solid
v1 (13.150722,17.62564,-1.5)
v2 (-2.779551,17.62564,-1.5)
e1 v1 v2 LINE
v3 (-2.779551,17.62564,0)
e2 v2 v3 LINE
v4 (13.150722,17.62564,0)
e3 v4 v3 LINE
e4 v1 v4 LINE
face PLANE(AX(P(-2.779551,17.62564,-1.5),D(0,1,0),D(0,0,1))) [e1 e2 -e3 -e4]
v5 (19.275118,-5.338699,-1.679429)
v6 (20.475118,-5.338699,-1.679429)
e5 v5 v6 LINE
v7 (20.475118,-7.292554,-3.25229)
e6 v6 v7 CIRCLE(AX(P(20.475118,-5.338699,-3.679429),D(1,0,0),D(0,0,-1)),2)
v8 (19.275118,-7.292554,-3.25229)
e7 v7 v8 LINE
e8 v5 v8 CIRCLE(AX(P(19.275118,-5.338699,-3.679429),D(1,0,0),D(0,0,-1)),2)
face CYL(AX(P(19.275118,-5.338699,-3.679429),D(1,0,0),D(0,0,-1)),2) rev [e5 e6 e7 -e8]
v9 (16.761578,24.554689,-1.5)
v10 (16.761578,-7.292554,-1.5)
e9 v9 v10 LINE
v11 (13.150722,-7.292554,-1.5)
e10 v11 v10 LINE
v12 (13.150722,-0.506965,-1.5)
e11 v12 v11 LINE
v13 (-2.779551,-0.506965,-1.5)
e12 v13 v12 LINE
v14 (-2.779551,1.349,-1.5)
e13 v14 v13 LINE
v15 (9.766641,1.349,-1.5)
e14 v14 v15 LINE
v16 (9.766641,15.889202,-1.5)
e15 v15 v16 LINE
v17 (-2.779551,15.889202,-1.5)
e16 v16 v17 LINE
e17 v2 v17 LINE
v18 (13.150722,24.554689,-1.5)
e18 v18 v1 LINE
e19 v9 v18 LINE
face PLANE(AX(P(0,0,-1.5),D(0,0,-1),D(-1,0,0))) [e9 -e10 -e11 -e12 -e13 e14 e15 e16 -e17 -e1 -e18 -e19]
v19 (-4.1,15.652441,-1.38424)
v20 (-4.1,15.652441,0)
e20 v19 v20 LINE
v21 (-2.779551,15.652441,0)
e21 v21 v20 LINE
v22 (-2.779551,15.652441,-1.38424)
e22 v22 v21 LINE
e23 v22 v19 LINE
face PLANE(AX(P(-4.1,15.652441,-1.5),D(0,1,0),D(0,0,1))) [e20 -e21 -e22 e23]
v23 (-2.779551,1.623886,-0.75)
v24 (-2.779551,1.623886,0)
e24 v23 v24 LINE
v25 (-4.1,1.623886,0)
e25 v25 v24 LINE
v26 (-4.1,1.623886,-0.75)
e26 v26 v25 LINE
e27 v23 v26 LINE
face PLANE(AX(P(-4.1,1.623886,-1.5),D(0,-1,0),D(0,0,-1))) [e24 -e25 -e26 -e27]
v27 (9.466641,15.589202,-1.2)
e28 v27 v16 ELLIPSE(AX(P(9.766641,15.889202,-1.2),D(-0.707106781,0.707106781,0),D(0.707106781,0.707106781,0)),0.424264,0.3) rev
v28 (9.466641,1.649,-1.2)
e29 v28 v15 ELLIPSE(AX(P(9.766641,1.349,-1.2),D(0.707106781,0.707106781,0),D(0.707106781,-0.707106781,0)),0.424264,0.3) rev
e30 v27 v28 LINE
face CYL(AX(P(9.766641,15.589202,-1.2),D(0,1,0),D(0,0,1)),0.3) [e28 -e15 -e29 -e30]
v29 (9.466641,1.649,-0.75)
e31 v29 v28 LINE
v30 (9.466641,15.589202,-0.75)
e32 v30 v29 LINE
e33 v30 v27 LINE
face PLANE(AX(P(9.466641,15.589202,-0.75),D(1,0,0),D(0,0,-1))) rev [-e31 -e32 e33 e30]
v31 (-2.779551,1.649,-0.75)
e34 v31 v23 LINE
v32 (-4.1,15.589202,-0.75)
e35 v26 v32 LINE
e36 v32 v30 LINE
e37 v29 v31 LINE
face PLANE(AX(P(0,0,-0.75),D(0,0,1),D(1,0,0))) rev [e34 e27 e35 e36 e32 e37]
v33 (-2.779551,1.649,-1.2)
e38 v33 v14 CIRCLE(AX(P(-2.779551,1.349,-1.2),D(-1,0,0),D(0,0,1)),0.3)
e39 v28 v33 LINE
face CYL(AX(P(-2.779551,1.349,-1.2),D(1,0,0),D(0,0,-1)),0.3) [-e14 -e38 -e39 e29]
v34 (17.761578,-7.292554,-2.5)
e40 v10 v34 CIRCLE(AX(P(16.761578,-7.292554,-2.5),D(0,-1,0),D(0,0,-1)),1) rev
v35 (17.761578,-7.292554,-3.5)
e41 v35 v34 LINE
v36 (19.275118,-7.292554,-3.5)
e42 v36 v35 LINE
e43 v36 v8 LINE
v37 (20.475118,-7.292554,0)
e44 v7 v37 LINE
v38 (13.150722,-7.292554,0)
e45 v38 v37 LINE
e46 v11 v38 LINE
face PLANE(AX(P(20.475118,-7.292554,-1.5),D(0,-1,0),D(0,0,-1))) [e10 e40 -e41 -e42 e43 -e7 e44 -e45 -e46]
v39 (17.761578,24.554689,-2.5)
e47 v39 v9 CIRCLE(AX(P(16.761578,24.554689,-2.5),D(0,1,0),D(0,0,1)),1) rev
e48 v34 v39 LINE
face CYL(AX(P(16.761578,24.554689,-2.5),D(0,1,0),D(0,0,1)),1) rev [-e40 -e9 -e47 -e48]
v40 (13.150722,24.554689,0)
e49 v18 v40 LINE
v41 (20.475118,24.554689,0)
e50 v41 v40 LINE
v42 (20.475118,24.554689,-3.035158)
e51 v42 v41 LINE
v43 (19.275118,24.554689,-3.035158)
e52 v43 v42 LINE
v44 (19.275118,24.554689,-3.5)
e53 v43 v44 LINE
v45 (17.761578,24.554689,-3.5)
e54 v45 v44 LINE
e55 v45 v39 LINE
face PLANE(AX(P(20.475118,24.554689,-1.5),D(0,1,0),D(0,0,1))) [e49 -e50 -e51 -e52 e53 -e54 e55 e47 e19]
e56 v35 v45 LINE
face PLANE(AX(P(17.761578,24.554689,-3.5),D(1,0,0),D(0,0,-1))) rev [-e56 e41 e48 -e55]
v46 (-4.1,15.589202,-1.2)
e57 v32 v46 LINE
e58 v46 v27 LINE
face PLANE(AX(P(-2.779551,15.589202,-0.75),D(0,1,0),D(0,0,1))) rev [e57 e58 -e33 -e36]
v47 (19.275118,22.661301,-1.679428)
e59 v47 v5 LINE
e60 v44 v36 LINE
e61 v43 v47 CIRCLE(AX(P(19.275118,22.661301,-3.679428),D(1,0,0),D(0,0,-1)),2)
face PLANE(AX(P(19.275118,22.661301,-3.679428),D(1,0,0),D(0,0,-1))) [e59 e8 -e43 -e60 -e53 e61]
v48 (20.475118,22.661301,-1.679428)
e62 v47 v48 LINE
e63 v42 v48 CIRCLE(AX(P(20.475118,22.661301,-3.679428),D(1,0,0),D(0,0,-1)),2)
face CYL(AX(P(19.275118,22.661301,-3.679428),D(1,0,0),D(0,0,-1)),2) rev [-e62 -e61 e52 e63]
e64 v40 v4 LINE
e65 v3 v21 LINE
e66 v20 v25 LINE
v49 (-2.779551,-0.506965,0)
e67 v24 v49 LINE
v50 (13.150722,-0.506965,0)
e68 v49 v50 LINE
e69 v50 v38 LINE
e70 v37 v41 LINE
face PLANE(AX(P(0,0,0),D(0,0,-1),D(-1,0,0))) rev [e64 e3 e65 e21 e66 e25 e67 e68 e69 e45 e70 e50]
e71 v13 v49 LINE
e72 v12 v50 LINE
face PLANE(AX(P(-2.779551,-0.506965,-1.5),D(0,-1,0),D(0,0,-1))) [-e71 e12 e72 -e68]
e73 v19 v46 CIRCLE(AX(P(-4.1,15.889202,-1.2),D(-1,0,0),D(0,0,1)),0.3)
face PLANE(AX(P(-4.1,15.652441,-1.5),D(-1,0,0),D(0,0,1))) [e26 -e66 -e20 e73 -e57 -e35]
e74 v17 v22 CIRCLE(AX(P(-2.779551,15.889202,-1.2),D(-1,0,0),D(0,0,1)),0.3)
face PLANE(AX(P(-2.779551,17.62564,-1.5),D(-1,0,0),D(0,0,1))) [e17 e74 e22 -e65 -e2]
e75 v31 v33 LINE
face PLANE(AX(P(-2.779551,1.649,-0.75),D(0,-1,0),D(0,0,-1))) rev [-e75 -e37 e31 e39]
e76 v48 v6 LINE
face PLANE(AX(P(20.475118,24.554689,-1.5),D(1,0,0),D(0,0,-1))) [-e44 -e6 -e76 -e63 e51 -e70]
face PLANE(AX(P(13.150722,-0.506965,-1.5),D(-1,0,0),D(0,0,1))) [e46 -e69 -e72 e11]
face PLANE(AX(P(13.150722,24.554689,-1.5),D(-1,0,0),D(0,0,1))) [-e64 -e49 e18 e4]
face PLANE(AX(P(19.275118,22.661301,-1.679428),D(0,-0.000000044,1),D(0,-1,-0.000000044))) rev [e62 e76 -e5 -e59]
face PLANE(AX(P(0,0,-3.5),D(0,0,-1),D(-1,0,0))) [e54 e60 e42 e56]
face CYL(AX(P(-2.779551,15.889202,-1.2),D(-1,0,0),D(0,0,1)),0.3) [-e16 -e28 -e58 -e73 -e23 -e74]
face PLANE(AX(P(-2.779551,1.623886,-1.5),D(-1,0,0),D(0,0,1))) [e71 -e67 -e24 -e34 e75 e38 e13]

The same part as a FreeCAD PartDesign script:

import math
import FreeCAD as App
import Part
import Sketcher
from FreeCAD import Vector


def edges_at(feature, points):
    """Names of the edges that pass closest to the given points."""
    edges = feature.Shape.Edges
    near = lambda p: min(range(len(edges)), key=lambda i: edges[i].distToShape(Part.Vertex(*p))[0])
    return sorted({f"Edge{near(p) + 1}" for p in points})


def add_polygon(sketch, points):
    """Adds a closed chain of lines whose ends are joined by coincident constraints."""
    first, n = sketch.GeometryCount, len(points)
    for a, b in zip(points, points[1:] + points[:1]):
        sketch.addGeometry(Part.LineSegment(App.Vector(*a, 0), App.Vector(*b, 0)), False)
    for i in range(n):
        sketch.addConstraint(Sketcher.Constraint("Coincident", first + i, 2, first + (i + 1) % n, 1))

doc = App.newDocument("Part")
params = doc.addObject("Spreadsheet::Sheet", "Params")
for row, (alias, value) in enumerate([
    ("pad1_length", "1.5 mm"),
    ("pad2_length", "2 mm"),
    ("pocket1_length", "0.75 mm"),
    ("fillet_radius", "1 mm"),
    ("fillet2_radius", "0.3 mm"),
    ("sketch4_radius", "2 mm"),
    ("sketch4_width", "28 mm"),
    ("pocket2_length", "1.2 mm"),
], start=1):
    params.set(f"A{row}", alias)
    params.set(f"B{row}", "=" + value)
    params.setAlias(f"B{row}", alias)

body = doc.addObject("PartDesign::Body", "Body")

# Sketch on XY plane
sketch1 = body.newObject("Sketcher::SketchObject", "Sketch")
sketch1.AttachmentSupport = (doc.getObject("XY_Plane"), [""])
sketch1.MapMode = "FlatFace"
add_polygon(sketch1, [(13.150722, -0.506965), (13.150722, -7.292554), (20.475118, -7.292554), (20.475118, 24.554689), (13.150722, 24.554689), (13.150722, 17.62564), (-2.779551, 17.62564), (-2.779551, 15.652441), (-4.1, 15.652441), (-4.1, 1.623886), (-2.779551, 1.623886), (-2.779551, -0.506965)])  # lines 0-11
sketch1.addConstraint([
    Sketcher.Constraint("Vertical", 0),
    Sketcher.Constraint("Horizontal", 1),
    Sketcher.Constraint("Vertical", 2),
    Sketcher.Constraint("Horizontal", 3),
    Sketcher.Constraint("Vertical", 4),
    Sketcher.Constraint("Horizontal", 5),
    Sketcher.Constraint("Vertical", 6),
    Sketcher.Constraint("Horizontal", 7),
    Sketcher.Constraint("Vertical", 8),
    Sketcher.Constraint("Horizontal", 9),
    Sketcher.Constraint("Vertical", 10),
    Sketcher.Constraint("Horizontal", 11),
    Sketcher.Constraint("Vertical", 0, 2, 3, 2),
    Sketcher.Constraint("Vertical", 6, 2, 9, 2),
    Sketcher.Constraint("DistanceX", 7, 2, -1, 1, 4.1),
    Sketcher.Constraint("DistanceY", 6, 2, 6, 1, 1.973199),
    Sketcher.Constraint("DistanceX", 7, 2, 7, 1, 1.320449),
    Sketcher.Constraint("DistanceY", 0, 2, 0, 1, 6.78559),
    Sketcher.Constraint("DistanceY", 4, 2, 4, 1, 6.929048),
    Sketcher.Constraint("DistanceY", 10, 2, 10, 1, 2.130851),
    Sketcher.Constraint("DistanceX", 1, 1, 1, 2, 7.324396),
    Sketcher.Constraint("DistanceX", 5, 2, 5, 1, 15.930273),
    Sketcher.Constraint("DistanceY", 2, 1, 2, 2, 31.847243),
    Sketcher.Constraint("DistanceY", -1, 1, 2, 2, 24.554689),
])
pad1 = body.newObject("PartDesign::Pad", "Pad")
pad1.Profile = sketch1
pad1.setExpression("Length", "Params.pad1_length")
pad1.Reversed = True

# Sketch on XY plane
sketch2 = body.newObject("Sketcher::SketchObject", "Sketch001")
sketch2.AttachmentSupport = (doc.getObject("XY_Plane"), [""])
sketch2.MapMode = "FlatFace"
sketch2.AttachmentOffset = App.Placement(Vector(0, 0, -1.5), App.Rotation())
add_polygon(sketch2, [(20.475118, 24.554689), (20.475118, -7.292554), (17.761578, -7.292554), (17.761578, 24.554689)])  # lines 0-3
sketch2.addConstraint([
    Sketcher.Constraint("Vertical", 0),
    Sketcher.Constraint("Horizontal", 1),
    Sketcher.Constraint("Vertical", 2),
    Sketcher.Constraint("Horizontal", 3),
    Sketcher.Constraint("DistanceX", 1, 2, 1, 1, 2.713539),
    Sketcher.Constraint("DistanceY", 0, 2, 0, 1, 31.847243),
    Sketcher.Constraint("DistanceX", -1, 1, 1, 2, 17.761578),
    Sketcher.Constraint("DistanceY", -1, 1, 2, 2, 24.554689),
])
pad2 = body.newObject("PartDesign::Pad", "Pad001")
pad2.Profile = sketch2
pad2.setExpression("Length", "Params.pad2_length")
pad2.Reversed = True

# Sketch on XY plane
sketch3 = body.newObject("Sketcher::SketchObject", "Sketch002")
sketch3.AttachmentSupport = (doc.getObject("XY_Plane"), [""])
sketch3.MapMode = "FlatFace"
sketch3.AttachmentOffset = App.Placement(Vector(0, 0, -1.5), App.Rotation())
add_polygon(sketch3, [(9.466641, 15.589202), (9.466641, 1.649), (-2.779551, 1.649), (-2.779551, 1.623886), (-4.1, 1.623886), (-4.1, 15.589202)])  # lines 0-5
sketch3.addConstraint([
    Sketcher.Constraint("Vertical", 0),
    Sketcher.Constraint("Horizontal", 1),
    Sketcher.Constraint("Vertical", 2),
    Sketcher.Constraint("Horizontal", 3),
    Sketcher.Constraint("Vertical", 4),
    Sketcher.Constraint("Horizontal", 5),
    Sketcher.Constraint("DistanceX", 3, 2, -1, 1, 4.1),
    Sketcher.Constraint("DistanceY", 0, 2, 0, 1, 13.940201),
    Sketcher.Constraint("DistanceY", -1, 1, 0, 2, 1.649),
    Sketcher.Constraint("DistanceX", 1, 2, 1, 1, 12.246192),
    Sketcher.Constraint("DistanceX", 3, 2, 3, 1, 1.320449),
    Sketcher.Constraint("DistanceY", 2, 2, 2, 1, 0.025114),
])
pocket1 = body.newObject("PartDesign::Pocket", "Pocket")
pocket1.Profile = sketch3
pocket1.setExpression("Length", "Params.pocket1_length")
pocket1.Reversed = True
doc.recompute()

fillet = body.newObject("PartDesign::Fillet", "Fillet")
fillet.Base = (pocket1, edges_at(pocket1, [(17.762, 8.631, -1.5)]))
fillet.setExpression("Radius", "Params.fillet_radius")
doc.recompute()

fillet2 = body.newObject("PartDesign::Fillet", "Fillet001")
fillet2.Base = (fillet, edges_at(fillet, [(3.344, 1.649, -1.5), (9.467, 8.619, -1.5), (2.683, 15.589, -1.5)]))
fillet2.setExpression("Radius", "Params.fillet2_radius")

# Sketch on YZ plane
sketch4 = body.newObject("Sketcher::SketchObject", "Sketch003")
sketch4.AttachmentSupport = (doc.getObject("YZ_Plane"), [""])
sketch4.MapMode = "FlatFace"
sketch4.AttachmentOffset = App.Placement(Vector(0, 0, 20.475118), App.Rotation())
sketch4.addGeometry([
    Part.LineSegment(Vector(22.661301, -1.679428, 0), Vector(-5.338699, -1.679429, 0)),
    Part.ArcOfCircle(Part.Circle(Vector(-5.338699, -3.679429, 0), Vector(0, 0, 1), 2), math.radians(90.000003), math.radians(180.000003)),
    Part.LineSegment(Vector(-7.338699, -3.679429, 0), Vector(24.661301, -3.679428, 0)),
    Part.ArcOfCircle(Part.Circle(Vector(22.661301, -3.679428, 0), Vector(0, 0, 1), 2), math.radians(0.000003), math.radians(90.000002)),
], False)
sketch4.addConstraint([
    Sketcher.Constraint("Tangent", 0, 2, 1, 1),
    Sketcher.Constraint("Coincident", 1, 2, 2, 1),
    Sketcher.Constraint("Coincident", 2, 2, 3, 1),
    Sketcher.Constraint("Tangent", 3, 2, 0, 1),
    Sketcher.Constraint("Horizontal", 0),
    Sketcher.Constraint("Horizontal", 2),
    Sketcher.Constraint("Equal", 1, 3),
    Sketcher.Constraint("Horizontal", 3, 3, 1, 2),
    Sketcher.Constraint("Radius", 1, 2.0),
    Sketcher.Constraint("DistanceX", 0, 2, 0, 1, 28.0),
    Sketcher.Constraint("DistanceX", 1, 3, -1, 1, 5.338699),
    Sketcher.Constraint("DistanceY", 1, 3, -1, 1, 3.679429),
])
sketch4.setExpression("Constraints[8]", "Params.sketch4_radius")
sketch4.setExpression("Constraints[9]", "Params.sketch4_width")
pocket2 = body.newObject("PartDesign::Pocket", "Pocket001")
pocket2.Profile = sketch4
pocket2.setExpression("Length", "Params.pocket2_length")

doc.recompute()
